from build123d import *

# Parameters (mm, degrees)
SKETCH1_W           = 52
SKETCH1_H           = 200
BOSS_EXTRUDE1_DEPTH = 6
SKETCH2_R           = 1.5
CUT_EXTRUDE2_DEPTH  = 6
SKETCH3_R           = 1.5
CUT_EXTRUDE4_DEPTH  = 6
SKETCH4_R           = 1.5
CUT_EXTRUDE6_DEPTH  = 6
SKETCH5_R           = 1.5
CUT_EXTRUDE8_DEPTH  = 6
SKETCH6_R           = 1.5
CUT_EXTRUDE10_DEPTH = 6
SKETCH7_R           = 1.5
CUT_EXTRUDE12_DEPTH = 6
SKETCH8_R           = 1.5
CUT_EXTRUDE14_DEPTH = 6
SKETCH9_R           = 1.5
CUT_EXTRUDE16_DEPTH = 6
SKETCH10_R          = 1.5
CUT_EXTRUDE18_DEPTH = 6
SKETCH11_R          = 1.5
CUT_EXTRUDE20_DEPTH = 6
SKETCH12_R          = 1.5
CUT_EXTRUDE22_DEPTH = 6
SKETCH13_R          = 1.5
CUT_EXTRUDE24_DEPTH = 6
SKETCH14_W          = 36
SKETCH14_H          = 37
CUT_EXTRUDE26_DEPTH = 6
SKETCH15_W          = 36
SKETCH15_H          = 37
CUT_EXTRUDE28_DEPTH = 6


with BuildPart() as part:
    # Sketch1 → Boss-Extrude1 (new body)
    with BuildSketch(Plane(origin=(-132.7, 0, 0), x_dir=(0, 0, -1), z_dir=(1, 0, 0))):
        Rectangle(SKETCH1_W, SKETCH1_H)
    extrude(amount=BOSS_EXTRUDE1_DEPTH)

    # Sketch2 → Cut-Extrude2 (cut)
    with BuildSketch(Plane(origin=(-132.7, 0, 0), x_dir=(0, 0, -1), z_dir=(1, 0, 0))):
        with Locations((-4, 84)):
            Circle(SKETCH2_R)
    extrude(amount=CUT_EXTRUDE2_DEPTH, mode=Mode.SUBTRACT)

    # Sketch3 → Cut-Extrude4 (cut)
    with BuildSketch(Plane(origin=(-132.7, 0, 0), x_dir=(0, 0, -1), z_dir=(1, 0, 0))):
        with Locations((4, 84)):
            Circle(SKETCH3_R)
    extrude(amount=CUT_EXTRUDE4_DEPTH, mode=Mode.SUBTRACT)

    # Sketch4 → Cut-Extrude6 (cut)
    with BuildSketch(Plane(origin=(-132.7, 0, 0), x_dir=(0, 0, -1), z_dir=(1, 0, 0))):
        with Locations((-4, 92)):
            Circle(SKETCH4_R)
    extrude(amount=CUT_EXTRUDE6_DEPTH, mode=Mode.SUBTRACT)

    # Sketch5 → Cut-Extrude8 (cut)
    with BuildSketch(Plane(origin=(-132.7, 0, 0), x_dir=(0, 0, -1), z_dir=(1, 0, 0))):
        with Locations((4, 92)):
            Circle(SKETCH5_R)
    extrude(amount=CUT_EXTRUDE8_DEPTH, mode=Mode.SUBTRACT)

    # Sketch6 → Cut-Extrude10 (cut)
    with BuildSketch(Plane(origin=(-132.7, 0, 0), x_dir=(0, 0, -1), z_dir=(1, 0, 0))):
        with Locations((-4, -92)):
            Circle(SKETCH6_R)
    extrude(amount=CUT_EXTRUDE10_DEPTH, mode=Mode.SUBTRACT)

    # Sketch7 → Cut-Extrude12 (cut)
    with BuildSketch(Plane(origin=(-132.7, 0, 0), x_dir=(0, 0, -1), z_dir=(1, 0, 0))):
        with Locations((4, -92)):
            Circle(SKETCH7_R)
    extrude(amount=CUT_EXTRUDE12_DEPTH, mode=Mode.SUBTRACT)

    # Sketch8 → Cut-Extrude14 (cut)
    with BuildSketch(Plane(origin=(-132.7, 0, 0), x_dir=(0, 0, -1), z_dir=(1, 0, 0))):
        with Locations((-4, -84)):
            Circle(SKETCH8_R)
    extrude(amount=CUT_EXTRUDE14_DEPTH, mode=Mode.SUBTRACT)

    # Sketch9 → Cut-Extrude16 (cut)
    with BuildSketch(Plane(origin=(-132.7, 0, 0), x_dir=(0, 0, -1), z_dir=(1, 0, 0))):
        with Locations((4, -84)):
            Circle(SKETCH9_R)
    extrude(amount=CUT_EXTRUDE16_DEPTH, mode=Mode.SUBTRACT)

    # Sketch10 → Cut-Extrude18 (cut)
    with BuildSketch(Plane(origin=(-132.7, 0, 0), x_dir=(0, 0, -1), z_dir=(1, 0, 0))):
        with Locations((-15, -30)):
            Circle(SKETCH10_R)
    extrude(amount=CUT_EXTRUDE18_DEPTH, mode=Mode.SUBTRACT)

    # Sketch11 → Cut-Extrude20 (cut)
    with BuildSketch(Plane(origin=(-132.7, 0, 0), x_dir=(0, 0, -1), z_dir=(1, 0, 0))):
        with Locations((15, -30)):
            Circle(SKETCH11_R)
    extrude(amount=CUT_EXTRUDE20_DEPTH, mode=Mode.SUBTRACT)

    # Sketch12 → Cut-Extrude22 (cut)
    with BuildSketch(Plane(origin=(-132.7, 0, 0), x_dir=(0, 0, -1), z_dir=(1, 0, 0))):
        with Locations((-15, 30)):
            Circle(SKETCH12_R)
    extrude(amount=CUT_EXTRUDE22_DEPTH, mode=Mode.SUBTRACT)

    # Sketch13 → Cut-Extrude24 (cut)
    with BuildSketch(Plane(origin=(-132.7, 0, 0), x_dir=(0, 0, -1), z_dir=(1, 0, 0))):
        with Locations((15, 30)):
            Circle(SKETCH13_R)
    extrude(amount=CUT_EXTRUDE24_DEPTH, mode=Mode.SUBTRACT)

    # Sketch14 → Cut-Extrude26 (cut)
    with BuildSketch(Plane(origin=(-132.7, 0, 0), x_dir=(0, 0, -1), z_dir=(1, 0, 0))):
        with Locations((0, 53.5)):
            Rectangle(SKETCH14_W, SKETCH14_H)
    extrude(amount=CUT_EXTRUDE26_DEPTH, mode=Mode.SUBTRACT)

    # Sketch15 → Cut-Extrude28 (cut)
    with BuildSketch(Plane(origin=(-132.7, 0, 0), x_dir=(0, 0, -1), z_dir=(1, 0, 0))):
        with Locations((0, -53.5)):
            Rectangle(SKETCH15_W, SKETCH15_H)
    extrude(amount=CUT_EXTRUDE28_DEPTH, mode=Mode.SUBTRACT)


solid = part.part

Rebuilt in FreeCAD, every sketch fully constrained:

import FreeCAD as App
import Part
import Sketcher
Q = App.Units.Quantity

doc = App.newDocument("Part")
params = doc.addObject("Spreadsheet::Sheet", "Params")
for row, (alias, value) in enumerate([
    ("sketch1_width", "200 mm"),
    ("sketch1_height", "52 mm"),
    ("pad1_length", "6 mm"),
    ("sketch2_diameter", "3 mm"),
    ("pocket1_length", "6 mm"),
    ("sketch3_diameter", "3 mm"),
    ("pocket2_length", "6 mm"),
    ("sketch4_diameter", "3 mm"),
    ("pocket3_length", "6 mm"),
    ("sketch5_diameter", "3 mm"),
    ("pocket4_length", "6 mm"),
    ("sketch6_diameter", "3 mm"),
    ("pocket5_length", "6 mm"),
    ("sketch7_diameter", "3 mm"),
    ("pocket6_length", "6 mm"),
    ("sketch8_diameter", "3 mm"),
    ("pocket7_length", "6 mm"),
    ("sketch9_diameter", "3 mm"),
    ("pocket8_length", "6 mm"),
    ("sketch10_diameter", "3 mm"),
    ("pocket9_length", "6 mm"),
    ("sketch11_diameter", "3 mm"),
    ("pocket10_length", "6 mm"),
    ("sketch12_diameter", "3 mm"),
    ("pocket11_length", "6 mm"),
    ("sketch13_diameter", "3 mm"),
    ("pocket12_length", "6 mm"),
    ("sketch14_width", "37 mm"),
    ("sketch14_height", "36 mm"),
    ("pocket13_length", "6 mm"),
    ("sketch15_width", "37 mm"),
    ("sketch15_height", "36 mm"),
    ("pocket14_length", "6 mm"),
], start=1):
    params.set(f"A{row}", alias)
    params.set(f"B{row}", "=" + value)
    params.setAlias(f"B{row}", alias)

body = doc.addObject("PartDesign::Body", "Body")

# Sketch on YZ plane
sketch1 = body.newObject("Sketcher::SketchObject", "Sketch")
sketch1.AttachmentSupport = (doc.getObject("YZ_Plane"), [""])
sketch1.MapMode = "FlatFace"
sketch1.AttachmentOffset = App.Placement(App.Vector(0, 0, -132.7), App.Rotation())
sketch1.addGeometry([
    Part.LineSegment(App.Vector(100, 26, 0), App.Vector(-100, 26, 0)),
    Part.LineSegment(App.Vector(-100, 26, 0), App.Vector(-100, -26, 0)),
    Part.LineSegment(App.Vector(-100, -26, 0), App.Vector(100, -26, 0)),
    Part.LineSegment(App.Vector(100, -26, 0), App.Vector(100, 26, 0)),
], False)
sketch1.addConstraint([
    Sketcher.Constraint("Coincident", 0, 2, 1, 1),
    Sketcher.Constraint("Coincident", 1, 2, 2, 1),
    Sketcher.Constraint("Coincident", 2, 2, 3, 1),
    Sketcher.Constraint("Coincident", 3, 2, 0, 1),
    Sketcher.Constraint("Horizontal", 0),
    Sketcher.Constraint("Vertical", 1),
    Sketcher.Constraint("Horizontal", 2),
    Sketcher.Constraint("Vertical", 3),
    Sketcher.Constraint("Symmetric", 0, 2, 2, 2, -1, 1),
    Sketcher.Constraint("DistanceX", 0, 2, 0, 1, Q("200 mm")),
    Sketcher.Constraint("DistanceY", 1, 2, 1, 1, Q("52 mm")),
])
sketch1.setExpression("Constraints[9]", "Params.sketch1_width")
sketch1.setExpression("Constraints[10]", "Params.sketch1_height")
pad1 = body.newObject("PartDesign::Pad", "Pad")
pad1.Profile = sketch1
pad1.setExpression("Length", "Params.pad1_length")

# Sketch on YZ plane
sketch2 = body.newObject("Sketcher::SketchObject", "Sketch001")
sketch2.AttachmentSupport = (doc.getObject("YZ_Plane"), [""])
sketch2.MapMode = "FlatFace"
sketch2.AttachmentOffset = App.Placement(App.Vector(0, 0, -132.7), App.Rotation())
sketch2.addGeometry(Part.Circle(App.Vector(84, 4, 0), App.Vector(0, 0, 1), 1.5), False)
sketch2.addConstraint([
    Sketcher.Constraint("Diameter", 0, Q("3 mm")),
    Sketcher.Constraint("DistanceX", -1, 1, 0, 3, Q("84 mm")),
    Sketcher.Constraint("DistanceY", -1, 1, 0, 3, Q("4 mm")),
])
sketch2.setExpression("Constraints[0]", "Params.sketch2_diameter")
pocket1 = body.newObject("PartDesign::Pocket", "Pocket")
pocket1.Profile = sketch2
pocket1.setExpression("Length", "Params.pocket1_length")
pocket1.Reversed = True

# Sketch on YZ plane
sketch3 = body.newObject("Sketcher::SketchObject", "Sketch002")
sketch3.AttachmentSupport = (doc.getObject("YZ_Plane"), [""])
sketch3.MapMode = "FlatFace"
sketch3.AttachmentOffset = App.Placement(App.Vector(0, 0, -132.7), App.Rotation())
sketch3.addGeometry(Part.Circle(App.Vector(84, -4, 0), App.Vector(0, 0, 1), 1.5), False)
sketch3.addConstraint([
    Sketcher.Constraint("Diameter", 0, Q("3 mm")),
    Sketcher.Constraint("DistanceX", -1, 1, 0, 3, Q("84 mm")),
    Sketcher.Constraint("DistanceY", 0, 3, -1, 1, Q("4 mm")),
])
sketch3.setExpression("Constraints[0]", "Params.sketch3_diameter")
pocket2 = body.newObject("PartDesign::Pocket", "Pocket001")
pocket2.Profile = sketch3
pocket2.setExpression("Length", "Params.pocket2_length")
pocket2.Reversed = True

# Sketch on YZ plane
sketch4 = body.newObject("Sketcher::SketchObject", "Sketch003")
sketch4.AttachmentSupport = (doc.getObject("YZ_Plane"), [""])
sketch4.MapMode = "FlatFace"
sketch4.AttachmentOffset = App.Placement(App.Vector(0, 0, -132.7), App.Rotation())
sketch4.addGeometry(Part.Circle(App.Vector(92, 4, 0), App.Vector(0, 0, 1), 1.5), False)
sketch4.addConstraint([
    Sketcher.Constraint("Diameter", 0, Q("3 mm")),
    Sketcher.Constraint("DistanceX", -1, 1, 0, 3, Q("92 mm")),
    Sketcher.Constraint("DistanceY", -1, 1, 0, 3, Q("4 mm")),
])
sketch4.setExpression("Constraints[0]", "Params.sketch4_diameter")
pocket3 = body.newObject("PartDesign::Pocket", "Pocket002")
pocket3.Profile = sketch4
pocket3.setExpression("Length", "Params.pocket3_length")
pocket3.Reversed = True

# Sketch on YZ plane
sketch5 = body.newObject("Sketcher::SketchObject", "Sketch004")
sketch5.AttachmentSupport = (doc.getObject("YZ_Plane"), [""])
sketch5.MapMode = "FlatFace"
sketch5.AttachmentOffset = App.Placement(App.Vector(0, 0, -132.7), App.Rotation())
sketch5.addGeometry(Part.Circle(App.Vector(92, -4, 0), App.Vector(0, 0, 1), 1.5), False)
sketch5.addConstraint([
    Sketcher.Constraint("Diameter", 0, Q("3 mm")),
    Sketcher.Constraint("DistanceX", -1, 1, 0, 3, Q("92 mm")),
    Sketcher.Constraint("DistanceY", 0, 3, -1, 1, Q("4 mm")),
])
sketch5.setExpression("Constraints[0]", "Params.sketch5_diameter")
pocket4 = body.newObject("PartDesign::Pocket", "Pocket003")
pocket4.Profile = sketch5
pocket4.setExpression("Length", "Params.pocket4_length")
pocket4.Reversed = True

# Sketch on YZ plane
sketch6 = body.newObject("Sketcher::SketchObject", "Sketch005")
sketch6.AttachmentSupport = (doc.getObject("YZ_Plane"), [""])
sketch6.MapMode = "FlatFace"
sketch6.AttachmentOffset = App.Placement(App.Vector(0, 0, -132.7), App.Rotation())
sketch6.addGeometry(Part.Circle(App.Vector(-92, 4, 0), App.Vector(0, 0, 1), 1.5), False)
sketch6.addConstraint([
    Sketcher.Constraint("Diameter", 0, Q("3 mm")),
    Sketcher.Constraint("DistanceX", 0, 3, -1, 1, Q("92 mm")),
    Sketcher.Constraint("DistanceY", -1, 1, 0, 3, Q("4 mm")),
])
sketch6.setExpression("Constraints[0]", "Params.sketch6_diameter")
pocket5 = body.newObject("PartDesign::Pocket", "Pocket004")
pocket5.Profile = sketch6
pocket5.setExpression("Length", "Params.pocket5_length")
pocket5.Reversed = True

# Sketch on YZ plane
sketch7 = body.newObject("Sketcher::SketchObject", "Sketch006")
sketch7.AttachmentSupport = (doc.getObject("YZ_Plane"), [""])
sketch7.MapMode = "FlatFace"
sketch7.AttachmentOffset = App.Placement(App.Vector(0, 0, -132.7), App.Rotation())
sketch7.addGeometry(Part.Circle(App.Vector(-92, -4, 0), App.Vector(0, 0, 1), 1.5), False)
sketch7.addConstraint([
    Sketcher.Constraint("Diameter", 0, Q("3 mm")),
    Sketcher.Constraint("DistanceX", 0, 3, -1, 1, Q("92 mm")),
    Sketcher.Constraint("DistanceY", 0, 3, -1, 1, Q("4 mm")),
])
sketch7.setExpression("Constraints[0]", "Params.sketch7_diameter")
pocket6 = body.newObject("PartDesign::Pocket", "Pocket005")
pocket6.Profile = sketch7
pocket6.setExpression("Length", "Params.pocket6_length")
pocket6.Reversed = True

# Sketch on YZ plane
sketch8 = body.newObject("Sketcher::SketchObject", "Sketch007")
sketch8.AttachmentSupport = (doc.getObject("YZ_Plane"), [""])
sketch8.MapMode = "FlatFace"
sketch8.AttachmentOffset = App.Placement(App.Vector(0, 0, -132.7), App.Rotation())
sketch8.addGeometry(Part.Circle(App.Vector(-84, 4, 0), App.Vector(0, 0, 1), 1.5), False)
sketch8.addConstraint([
    Sketcher.Constraint("Diameter", 0, Q("3 mm")),
    Sketcher.Constraint("DistanceX", 0, 3, -1, 1, Q("84 mm")),
    Sketcher.Constraint("DistanceY", -1, 1, 0, 3, Q("4 mm")),
])
sketch8.setExpression("Constraints[0]", "Params.sketch8_diameter")
pocket7 = body.newObject("PartDesign::Pocket", "Pocket006")
pocket7.Profile = sketch8
pocket7.setExpression("Length", "Params.pocket7_length")
pocket7.Reversed = True

# Sketch on YZ plane
sketch9 = body.newObject("Sketcher::SketchObject", "Sketch008")
sketch9.AttachmentSupport = (doc.getObject("YZ_Plane"), [""])
sketch9.MapMode = "FlatFace"
sketch9.AttachmentOffset = App.Placement(App.Vector(0, 0, -132.7), App.Rotation())
sketch9.addGeometry(Part.Circle(App.Vector(-84, -4, 0), App.Vector(0, 0, 1), 1.5), False)
sketch9.addConstraint([
    Sketcher.Constraint("Diameter", 0, Q("3 mm")),
    Sketcher.Constraint("DistanceX", 0, 3, -1, 1, Q("84 mm")),
    Sketcher.Constraint("DistanceY", 0, 3, -1, 1, Q("4 mm")),
])
sketch9.setExpression("Constraints[0]", "Params.sketch9_diameter")
pocket8 = body.newObject("PartDesign::Pocket", "Pocket007")
pocket8.Profile = sketch9
pocket8.setExpression("Length", "Params.pocket8_length")
pocket8.Reversed = True

# Sketch on YZ plane
sketch10 = body.newObject("Sketcher::SketchObject", "Sketch009")
sketch10.AttachmentSupport = (doc.getObject("YZ_Plane"), [""])
sketch10.MapMode = "FlatFace"
sketch10.AttachmentOffset = App.Placement(App.Vector(0, 0, -132.7), App.Rotation())
sketch10.addGeometry(Part.Circle(App.Vector(-30, 15, 0), App.Vector(0, 0, 1), 1.5), False)
sketch10.addConstraint([
    Sketcher.Constraint("Diameter", 0, Q("3 mm")),
    Sketcher.Constraint("DistanceX", 0, 3, -1, 1, Q("30 mm")),
    Sketcher.Constraint("DistanceY", -1, 1, 0, 3, Q("15 mm")),
])
sketch10.setExpression("Constraints[0]", "Params.sketch10_diameter")
pocket9 = body.newObject("PartDesign::Pocket", "Pocket008")
pocket9.Profile = sketch10
pocket9.setExpression("Length", "Params.pocket9_length")
pocket9.Reversed = True

# Sketch on YZ plane
sketch11 = body.newObject("Sketcher::SketchObject", "Sketch010")
sketch11.AttachmentSupport = (doc.getObject("YZ_Plane"), [""])
sketch11.MapMode = "FlatFace"
sketch11.AttachmentOffset = App.Placement(App.Vector(0, 0, -132.7), App.Rotation())
sketch11.addGeometry(Part.Circle(App.Vector(-30, -15, 0), App.Vector(0, 0, 1), 1.5), False)
sketch11.addConstraint([
    Sketcher.Constraint("Diameter", 0, Q("3 mm")),
    Sketcher.Constraint("DistanceX", 0, 3, -1, 1, Q("30 mm")),
    Sketcher.Constraint("DistanceY", 0, 3, -1, 1, Q("15 mm")),
])
sketch11.setExpression("Constraints[0]", "Params.sketch11_diameter")
pocket10 = body.newObject("PartDesign::Pocket", "Pocket009")
pocket10.Profile = sketch11
pocket10.setExpression("Length", "Params.pocket10_length")
pocket10.Reversed = True

# Sketch on YZ plane
sketch12 = body.newObject("Sketcher::SketchObject", "Sketch011")
sketch12.AttachmentSupport = (doc.getObject("YZ_Plane"), [""])
sketch12.MapMode = "FlatFace"
sketch12.AttachmentOffset = App.Placement(App.Vector(0, 0, -132.7), App.Rotation())
sketch12.addGeometry(Part.Circle(App.Vector(30, 15, 0), App.Vector(0, 0, 1), 1.5), False)
sketch12.addConstraint([
    Sketcher.Constraint("Diameter", 0, Q("3 mm")),
    Sketcher.Constraint("DistanceX", -1, 1, 0, 3, Q("30 mm")),
    Sketcher.Constraint("DistanceY", -1, 1, 0, 3, Q("15 mm")),
])
sketch12.setExpression("Constraints[0]", "Params.sketch12_diameter")
pocket11 = body.newObject("PartDesign::Pocket", "Pocket010")
pocket11.Profile = sketch12
pocket11.setExpression("Length", "Params.pocket11_length")
pocket11.Reversed = True

# Sketch on YZ plane
sketch13 = body.newObject("Sketcher::SketchObject", "Sketch012")
sketch13.AttachmentSupport = (doc.getObject("YZ_Plane"), [""])
sketch13.MapMode = "FlatFace"
sketch13.AttachmentOffset = App.Placement(App.Vector(0, 0, -132.7), App.Rotation())
sketch13.addGeometry(Part.Circle(App.Vector(30, -15, 0), App.Vector(0, 0, 1), 1.5), False)
sketch13.addConstraint([
    Sketcher.Constraint("Diameter", 0, Q("3 mm")),
    Sketcher.Constraint("DistanceX", -1, 1, 0, 3, Q("30 mm")),
    Sketcher.Constraint("DistanceY", 0, 3, -1, 1, Q("15 mm")),
])
sketch13.setExpression("Constraints[0]", "Params.sketch13_diameter")
pocket12 = body.newObject("PartDesign::Pocket", "Pocket011")
pocket12.Profile = sketch13
pocket12.setExpression("Length", "Params.pocket12_length")
pocket12.Reversed = True

# Sketch on YZ plane
sketch14 = body.newObject("Sketcher::SketchObject", "Sketch013")
sketch14.AttachmentSupport = (doc.getObject("YZ_Plane"), [""])
sketch14.MapMode = "FlatFace"
sketch14.AttachmentOffset = App.Placement(App.Vector(0, 0, -132.7), App.Rotation())
sketch14.addGeometry([
    Part.LineSegment(App.Vector(72, 18, 0), App.Vector(35, 18, 0)),
    Part.LineSegment(App.Vector(35, 18, 0), App.Vector(35, -18, 0)),
    Part.LineSegment(App.Vector(35, -18, 0), App.Vector(72, -18, 0)),
    Part.LineSegment(App.Vector(72, -18, 0), App.Vector(72, 18, 0)),
], False)
sketch14.addConstraint([
    Sketcher.Constraint("Coincident", 0, 2, 1, 1),
    Sketcher.Constraint("Coincident", 1, 2, 2, 1),
    Sketcher.Constraint("Coincident", 2, 2, 3, 1),
    Sketcher.Constraint("Coincident", 3, 2, 0, 1),
    Sketcher.Constraint("Horizontal", 0),
    Sketcher.Constraint("Vertical", 1),
    Sketcher.Constraint("Horizontal", 2),
    Sketcher.Constraint("Vertical", 3),
    Sketcher.Constraint("DistanceX", 0, 2, 0, 1, Q("37 mm")),
    Sketcher.Constraint("DistanceY", 1, 2, 1, 1, Q("36 mm")),
    Sketcher.Constraint("DistanceX", -1, 1, 0, 2, Q("35 mm")),
    Sketcher.Constraint("DistanceY", -1, 1, 0, 2, Q("18 mm")),
])
sketch14.setExpression("Constraints[8]", "Params.sketch14_width")
sketch14.setExpression("Constraints[9]", "Params.sketch14_height")
pocket13 = body.newObject("PartDesign::Pocket", "Pocket012")
pocket13.Profile = sketch14
pocket13.setExpression("Length", "Params.pocket13_length")
pocket13.Reversed = True

# Sketch on YZ plane
sketch15 = body.newObject("Sketcher::SketchObject", "Sketch014")
sketch15.AttachmentSupport = (doc.getObject("YZ_Plane"), [""])
sketch15.MapMode = "FlatFace"
sketch15.AttachmentOffset = App.Placement(App.Vector(0, 0, -132.7), App.Rotation())
sketch15.addGeometry([
    Part.LineSegment(App.Vector(-35, 18, 0), App.Vector(-72, 18, 0)),
    Part.LineSegment(App.Vector(-72, 18, 0), App.Vector(-72, -18, 0)),
    Part.LineSegment(App.Vector(-72, -18, 0), App.Vector(-35, -18, 0)),
    Part.LineSegment(App.Vector(-35, -18, 0), App.Vector(-35, 18, 0)),
], False)
sketch15.addConstraint([
    Sketcher.Constraint("Coincident", 0, 2, 1, 1),
    Sketcher.Constraint("Coincident", 1, 2, 2, 1),
    Sketcher.Constraint("Coincident", 2, 2, 3, 1),
    Sketcher.Constraint("Coincident", 3, 2, 0, 1),
    Sketcher.Constraint("Horizontal", 0),
    Sketcher.Constraint("Vertical", 1),
    Sketcher.Constraint("Horizontal", 2),
    Sketcher.Constraint("Vertical", 3),
    Sketcher.Constraint("DistanceX", 0, 2, 0, 1, Q("37 mm")),
    Sketcher.Constraint("DistanceY", 1, 2, 1, 1, Q("36 mm")),
    Sketcher.Constraint("DistanceX", 0, 2, -1, 1, Q("72 mm")),
    Sketcher.Constraint("DistanceY", -1, 1, 0, 2, Q("18 mm")),
])
sketch15.setExpression("Constraints[8]", "Params.sketch15_width")
sketch15.setExpression("Constraints[9]", "Params.sketch15_height")
pocket14 = body.newObject("PartDesign::Pocket", "Pocket013")
pocket14.Profile = sketch15
pocket14.setExpression("Length", "Params.pocket14_length")
pocket14.Reversed = True

doc.recompute()
